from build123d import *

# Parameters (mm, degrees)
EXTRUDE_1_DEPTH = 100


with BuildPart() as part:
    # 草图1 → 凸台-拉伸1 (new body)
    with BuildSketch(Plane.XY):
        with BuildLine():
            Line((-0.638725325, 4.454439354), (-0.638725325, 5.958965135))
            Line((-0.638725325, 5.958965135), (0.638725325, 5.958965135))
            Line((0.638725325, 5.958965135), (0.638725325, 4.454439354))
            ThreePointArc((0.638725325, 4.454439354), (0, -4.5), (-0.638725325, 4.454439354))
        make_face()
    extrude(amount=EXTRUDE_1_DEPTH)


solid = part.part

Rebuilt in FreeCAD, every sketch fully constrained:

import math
import FreeCAD as App
import Part
import Sketcher
from FreeCAD import Vector

doc = App.newDocument("Part")
body = doc.addObject("PartDesign::Body", "Body")

sketch1 = body.newObject("Sketcher::SketchObject", "Sketch")
sketch1.AttachmentSupport = (doc.getObject("XY_Plane"), [""])
sketch1.MapMode = "FlatFace"
sketch1.addGeometry([
    Part.LineSegment(Vector(-0.6, 6, 0), Vector(-0.6, 4.5, 0)),
    Part.ArcOfCircle(Part.Circle(Vector(0, 0, 0), Vector(0, 0, 1), 4.5), math.radians(98), math.radians(442)),
    Part.LineSegment(Vector(0.6, 4.5, 0), Vector(0.6, 6, 0)),
    Part.LineSegment(Vector(0.6, 6, 0), Vector(-0.6, 6, 0)),
], False)
sketch1.addConstraint([
    Sketcher.Constraint("Coincident", 0, 2, 1, 1),
    Sketcher.Constraint("Coincident", 1, 2, 2, 1),
    Sketcher.Constraint("Coincident", 2, 2, 3, 1),
    Sketcher.Constraint("Coincident", 3, 2, 0, 1),
    Sketcher.Constraint("Vertical", 0),
    Sketcher.Constraint("Vertical", 2),
    Sketcher.Constraint("Horizontal", 3),
    Sketcher.Constraint("Coincident", 1, 3, -1, 1),
    Sketcher.Constraint("Horizontal", 0, 2, 1, 2),
    Sketcher.Constraint("Radius", 1, 4.5),
    Sketcher.Constraint("DistanceX", 3, 2, 3, 1, 1.277451),
    Sketcher.Constraint("DistanceY", 0, 2, 0, 1, 1.504526),
])
pad1 = body.newObject("PartDesign::Pad", "Pad")
pad1.Profile = sketch1
pad1.Length = 100

doc.recompute()
